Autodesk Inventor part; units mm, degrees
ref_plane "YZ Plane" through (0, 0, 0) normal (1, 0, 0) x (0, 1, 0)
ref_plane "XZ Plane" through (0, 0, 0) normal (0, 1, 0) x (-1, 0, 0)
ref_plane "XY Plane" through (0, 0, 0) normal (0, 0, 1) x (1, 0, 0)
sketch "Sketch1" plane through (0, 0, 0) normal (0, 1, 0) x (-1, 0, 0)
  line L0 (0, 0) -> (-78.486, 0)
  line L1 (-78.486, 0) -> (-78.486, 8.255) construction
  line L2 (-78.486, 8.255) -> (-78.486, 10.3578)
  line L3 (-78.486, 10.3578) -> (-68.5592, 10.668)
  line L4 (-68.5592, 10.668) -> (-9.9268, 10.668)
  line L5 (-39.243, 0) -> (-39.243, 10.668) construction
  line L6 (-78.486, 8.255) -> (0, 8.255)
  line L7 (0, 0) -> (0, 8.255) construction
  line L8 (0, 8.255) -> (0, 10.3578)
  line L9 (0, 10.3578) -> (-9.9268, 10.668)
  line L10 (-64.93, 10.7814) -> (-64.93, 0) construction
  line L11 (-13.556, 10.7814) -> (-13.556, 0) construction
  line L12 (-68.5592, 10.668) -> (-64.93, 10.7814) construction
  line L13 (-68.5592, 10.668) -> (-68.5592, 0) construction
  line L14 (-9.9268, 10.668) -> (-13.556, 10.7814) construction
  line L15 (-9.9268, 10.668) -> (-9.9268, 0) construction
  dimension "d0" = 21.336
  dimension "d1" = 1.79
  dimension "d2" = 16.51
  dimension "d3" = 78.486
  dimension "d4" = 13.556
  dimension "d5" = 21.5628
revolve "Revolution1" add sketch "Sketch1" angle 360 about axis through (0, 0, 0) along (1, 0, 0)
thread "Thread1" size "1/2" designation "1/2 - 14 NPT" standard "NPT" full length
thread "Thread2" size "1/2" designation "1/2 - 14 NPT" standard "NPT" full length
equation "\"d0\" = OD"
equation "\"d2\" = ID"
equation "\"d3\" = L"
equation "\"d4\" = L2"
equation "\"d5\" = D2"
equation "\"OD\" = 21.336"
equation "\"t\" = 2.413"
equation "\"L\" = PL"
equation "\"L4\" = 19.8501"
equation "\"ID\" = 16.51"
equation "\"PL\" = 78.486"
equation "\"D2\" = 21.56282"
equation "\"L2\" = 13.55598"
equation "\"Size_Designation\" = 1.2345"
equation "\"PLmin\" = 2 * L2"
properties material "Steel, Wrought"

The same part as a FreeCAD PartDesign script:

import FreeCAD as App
import Part
import Sketcher
Q = App.Units.Quantity

doc = App.newDocument("Part")
body = doc.addObject("PartDesign::Body", "Body")

# Sketch on XZ plane
sketch1 = body.newObject("Sketcher::SketchObject", "Sketch")
sketch1.AttachmentSupport = (doc.getObject("XZ_Plane"), [""])
sketch1.MapMode = "FlatFace"
sketch1.addGeometry(Part.LineSegment(App.Vector(78.5, 10.4, 0), App.Vector(78.5, 8.3, 0)), False)
sketch1.addGeometry(Part.LineSegment(App.Vector(78.5, 8.3, 0), App.Vector(0, 8.3, 0)), False)
sketch1.addGeometry(Part.LineSegment(App.Vector(0, 8.3, 0), App.Vector(0, 10.4, 0)), False)
sketch1.addGeometry(Part.LineSegment(App.Vector(0, 10.4, 0), App.Vector(9.9, 10.7, 0)), False)
sketch1.addGeometry(Part.LineSegment(App.Vector(9.9, 10.7, 0), App.Vector(68.6, 10.7, 0)), False)
sketch1.addGeometry(Part.LineSegment(App.Vector(68.6, 10.7, 0), App.Vector(78.5, 10.4, 0)), False)
sketch1.addConstraint(Sketcher.Constraint("Coincident", 0, 2, 1, 1))
sketch1.addConstraint(Sketcher.Constraint("Coincident", 1, 2, 2, 1))
sketch1.addConstraint(Sketcher.Constraint("Coincident", 2, 2, 3, 1))
sketch1.addConstraint(Sketcher.Constraint("Coincident", 3, 2, 4, 1))
sketch1.addConstraint(Sketcher.Constraint("Coincident", 4, 2, 5, 1))
sketch1.addConstraint(Sketcher.Constraint("Coincident", 5, 2, 0, 1))
sketch1.addConstraint(Sketcher.Constraint("Vertical", 0))
sketch1.addConstraint(Sketcher.Constraint("Horizontal", 1))
sketch1.addConstraint(Sketcher.Constraint("Vertical", 2))
sketch1.addConstraint(Sketcher.Constraint("Horizontal", 4))
sketch1.addConstraint(Sketcher.Constraint("PointOnObject", 1, 2, -2))
sketch1.addConstraint(Sketcher.Constraint("Horizontal", 2, 2, 5, 2))
sketch1.addConstraint(Sketcher.Constraint("Equal", 3, 5))
sketch1.addConstraint(Sketcher.Constraint("DistanceX", 1, 2, 1, 1, Q("3.09 in")))
sketch1.addConstraint(Sketcher.Constraint("Angle", 3, Q("1.7898 deg")))
sketch1.addConstraint(Sketcher.Constraint("DistanceY", -1, 1, 3, 2, Q("0.42 in")))
sketch1.addConstraint(Sketcher.Constraint("Distance", 3, Q("0.391 in")))
sketch1.addConstraint(Sketcher.Constraint("DistanceY", -1, 1, 0, 2, Q("0.325 in")))
revolution = body.newObject("PartDesign::Revolution", "Revolution")
revolution.Profile = sketch1
revolution.ReferenceAxis = (sketch1, ["H_Axis"])
revolution.Angle = 360

doc.recompute()
